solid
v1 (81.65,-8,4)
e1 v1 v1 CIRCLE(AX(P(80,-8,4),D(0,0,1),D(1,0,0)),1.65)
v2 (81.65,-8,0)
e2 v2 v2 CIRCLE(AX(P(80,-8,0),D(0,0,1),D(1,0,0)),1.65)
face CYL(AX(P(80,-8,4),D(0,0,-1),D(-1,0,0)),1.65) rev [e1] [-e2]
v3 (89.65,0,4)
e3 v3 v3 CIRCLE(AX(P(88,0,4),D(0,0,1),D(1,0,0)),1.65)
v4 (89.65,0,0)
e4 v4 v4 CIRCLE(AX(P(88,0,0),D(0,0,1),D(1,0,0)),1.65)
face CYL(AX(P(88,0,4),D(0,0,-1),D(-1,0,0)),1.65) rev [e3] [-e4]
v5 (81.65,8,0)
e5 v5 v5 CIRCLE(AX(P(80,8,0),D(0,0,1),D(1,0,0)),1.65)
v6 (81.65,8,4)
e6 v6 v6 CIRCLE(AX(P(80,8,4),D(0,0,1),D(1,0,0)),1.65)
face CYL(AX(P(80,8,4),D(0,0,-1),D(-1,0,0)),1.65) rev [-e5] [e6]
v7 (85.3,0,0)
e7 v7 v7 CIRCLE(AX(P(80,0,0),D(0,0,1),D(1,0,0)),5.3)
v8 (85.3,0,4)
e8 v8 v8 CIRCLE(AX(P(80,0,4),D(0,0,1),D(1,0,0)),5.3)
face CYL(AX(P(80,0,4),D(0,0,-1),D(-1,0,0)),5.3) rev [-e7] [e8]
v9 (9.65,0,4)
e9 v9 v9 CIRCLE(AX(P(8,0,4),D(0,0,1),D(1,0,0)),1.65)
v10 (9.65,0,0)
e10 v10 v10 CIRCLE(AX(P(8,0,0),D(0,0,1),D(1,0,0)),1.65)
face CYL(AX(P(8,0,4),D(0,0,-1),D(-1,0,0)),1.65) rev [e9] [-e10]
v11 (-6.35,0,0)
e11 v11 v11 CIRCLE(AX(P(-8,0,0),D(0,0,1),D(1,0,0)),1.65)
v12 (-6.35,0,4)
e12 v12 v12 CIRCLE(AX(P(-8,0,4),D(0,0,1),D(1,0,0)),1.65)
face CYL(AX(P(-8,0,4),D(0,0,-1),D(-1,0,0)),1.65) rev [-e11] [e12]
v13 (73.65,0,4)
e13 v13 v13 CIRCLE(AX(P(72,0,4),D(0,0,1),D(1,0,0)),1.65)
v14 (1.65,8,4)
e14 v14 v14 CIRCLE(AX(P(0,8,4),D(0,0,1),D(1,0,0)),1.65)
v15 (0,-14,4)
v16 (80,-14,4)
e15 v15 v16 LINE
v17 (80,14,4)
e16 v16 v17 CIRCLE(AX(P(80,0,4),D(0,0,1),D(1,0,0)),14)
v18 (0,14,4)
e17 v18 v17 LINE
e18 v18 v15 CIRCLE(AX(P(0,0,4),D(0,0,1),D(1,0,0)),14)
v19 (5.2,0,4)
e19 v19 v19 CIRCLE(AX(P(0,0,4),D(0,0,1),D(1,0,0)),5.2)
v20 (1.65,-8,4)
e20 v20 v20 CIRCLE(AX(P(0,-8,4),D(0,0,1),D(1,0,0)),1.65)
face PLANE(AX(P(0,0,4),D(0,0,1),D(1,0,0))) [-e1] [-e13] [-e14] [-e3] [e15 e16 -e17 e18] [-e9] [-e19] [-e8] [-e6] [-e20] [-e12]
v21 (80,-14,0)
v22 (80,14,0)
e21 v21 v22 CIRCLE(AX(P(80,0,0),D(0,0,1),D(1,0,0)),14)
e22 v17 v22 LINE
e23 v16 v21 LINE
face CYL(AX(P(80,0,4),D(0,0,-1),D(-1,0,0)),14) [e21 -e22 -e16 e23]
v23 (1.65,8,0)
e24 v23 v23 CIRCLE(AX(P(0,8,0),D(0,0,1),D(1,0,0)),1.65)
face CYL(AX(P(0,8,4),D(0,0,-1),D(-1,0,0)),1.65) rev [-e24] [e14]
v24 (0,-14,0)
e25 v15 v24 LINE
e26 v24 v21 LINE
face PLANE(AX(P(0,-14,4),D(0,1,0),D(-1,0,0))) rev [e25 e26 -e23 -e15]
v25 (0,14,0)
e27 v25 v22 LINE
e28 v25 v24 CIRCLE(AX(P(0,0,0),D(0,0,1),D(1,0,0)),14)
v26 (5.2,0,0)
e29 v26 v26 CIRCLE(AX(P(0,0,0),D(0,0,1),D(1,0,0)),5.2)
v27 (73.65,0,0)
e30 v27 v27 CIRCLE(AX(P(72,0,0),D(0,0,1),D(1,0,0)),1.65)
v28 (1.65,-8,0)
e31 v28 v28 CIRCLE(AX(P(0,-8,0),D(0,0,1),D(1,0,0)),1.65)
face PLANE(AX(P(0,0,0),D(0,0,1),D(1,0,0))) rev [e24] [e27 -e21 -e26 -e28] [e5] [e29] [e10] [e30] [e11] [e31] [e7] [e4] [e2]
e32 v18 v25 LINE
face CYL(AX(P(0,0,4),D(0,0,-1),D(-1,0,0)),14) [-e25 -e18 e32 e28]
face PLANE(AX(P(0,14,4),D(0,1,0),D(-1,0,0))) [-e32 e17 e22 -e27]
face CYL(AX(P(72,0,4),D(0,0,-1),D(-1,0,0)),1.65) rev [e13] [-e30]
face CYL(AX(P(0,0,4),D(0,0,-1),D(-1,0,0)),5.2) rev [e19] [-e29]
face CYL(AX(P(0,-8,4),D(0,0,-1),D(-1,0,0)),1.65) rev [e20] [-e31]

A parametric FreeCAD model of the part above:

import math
import FreeCAD as App
import Part
import Sketcher
from FreeCAD import Vector

doc = App.newDocument("Part")
params = doc.addObject("Spreadsheet::Sheet", "Params")
for row, (alias, value) in enumerate([
    ("sketch1_radius", "14 mm"),
    ("sketch1_radius2", "5.2 mm"),
    ("sketch1_radius3", "5.3 mm"),
    ("sketch1_width", "80 mm"),
    ("sketch1_radius4", "1.65 mm"),
    ("pad1_length", "4 mm"),
], start=1):
    params.set(f"A{row}", alias)
    params.set(f"B{row}", "=" + value)
    params.setAlias(f"B{row}", alias)

body = doc.addObject("PartDesign::Body", "Body")

# Sketch on XY plane
sketch1 = doc.addObject("Sketcher::SketchObject", "Sketch")
body.addObject(sketch1)
sketch1.AttachmentSupport = (doc.XY_Plane, [""])
sketch1.MapMode = "FlatFace"
sketch1.addGeometry([
    Part.ArcOfCircle(Part.Circle(Vector(0, 0, 0), Vector(0, 0, 1), 14), math.radians(90), math.radians(270)),  # 0
    Part.LineSegment(Vector(0, -14, 0), Vector(80, -14, 0)),  # 1
    Part.ArcOfCircle(Part.Circle(Vector(80, 0, 0), Vector(0, 0, 1), 14), math.radians(-90), math.radians(0)),  # 2
    Part.ArcOfCircle(Part.Circle(Vector(80, 0, 0), Vector(0, 0, 1), 14), math.radians(0), math.radians(90)),  # 3
    Part.LineSegment(Vector(80, 14, 0), Vector(0, 14, 0)),  # 4
    Part.ArcOfCircle(Part.Circle(Vector(0, -8, 0), Vector(0, 0, 1), 1.65), math.radians(174.080849), math.radians(270)),  # 5
    Part.ArcOfCircle(Part.Circle(Vector(0, -8, 0), Vector(0, 0, 1), 1.65), math.radians(90), math.radians(174.080849)),  # 6
    Part.ArcOfCircle(Part.Circle(Vector(0, -8, 0), Vector(0, 0, 1), 1.65), math.radians(5.919151), math.radians(90)),  # 7
    Part.ArcOfCircle(Part.Circle(Vector(0, -8, 0), Vector(0, 0, 1), 1.65), math.radians(0), math.radians(5.91915)),  # 8
    Part.ArcOfCircle(Part.Circle(Vector(0, -8, 0), Vector(0, 0, 1), 1.65), math.radians(-90), math.radians(0)),  # 9
    Part.ArcOfCircle(Part.Circle(Vector(8, 0, 0), Vector(0, 0, 1), 1.65), math.radians(95.919151), math.radians(264.080849)),  # 10
    Part.ArcOfCircle(Part.Circle(Vector(8, 0, 0), Vector(0, 0, 1), 1.65), math.radians(0), math.radians(95.919151)),  # 11
    Part.ArcOfCircle(Part.Circle(Vector(8, 0, 0), Vector(0, 0, 1), 1.65), math.radians(-95.919151), math.radians(0)),  # 12
    Part.ArcOfCircle(Part.Circle(Vector(0, 8, 0), Vector(0, 0, 1), 1.65), math.radians(-90), math.radians(-5.919151)),  # 13
    Part.ArcOfCircle(Part.Circle(Vector(0, 8, 0), Vector(0, 0, 1), 1.65), math.radians(-174.080849), math.radians(-90)),  # 14
    Part.ArcOfCircle(Part.Circle(Vector(0, 8, 0), Vector(0, 0, 1), 1.65), math.radians(90), math.radians(185.919151)),  # 15
    Part.ArcOfCircle(Part.Circle(Vector(0, 8, 0), Vector(0, 0, 1), 1.65), math.radians(0), math.radians(90)),  # 16
    Part.ArcOfCircle(Part.Circle(Vector(0, 8, 0), Vector(0, 0, 1), 1.65), math.radians(-5.91915), math.radians(0)),  # 17
    Part.ArcOfCircle(Part.Circle(Vector(0, 0, 0), Vector(0, 0, 1), 5.2), math.radians(90), math.radians(270)),  # 18
    Part.ArcOfCircle(Part.Circle(Vector(0, 0, 0), Vector(0, 0, 1), 5.2), math.radians(0), math.radians(90)),  # 19
    Part.ArcOfCircle(Part.Circle(Vector(0, 0, 0), Vector(0, 0, 1), 5.2), math.radians(-90), math.radians(0)),  # 20
    Part.ArcOfCircle(Part.Circle(Vector(-8, 0, 0), Vector(0, 0, 1), 1.65), math.radians(84.080849), math.radians(275.919151)),  # 21
    Part.ArcOfCircle(Part.Circle(Vector(-8, 0, 0), Vector(0, 0, 1), 1.65), math.radians(0), math.radians(84.080849)),  # 22
    Part.ArcOfCircle(Part.Circle(Vector(-8, 0, 0), Vector(0, 0, 1), 1.65), math.radians(-84.080849), math.radians(0)),  # 23
    Part.ArcOfCircle(Part.Circle(Vector(72, 0, 0), Vector(0, 0, 1), 1.65), math.radians(-84.080849), math.radians(0)),  # 24
    Part.ArcOfCircle(Part.Circle(Vector(72, 0, 0), Vector(0, 0, 1), 1.65), math.radians(84.080849), math.radians(275.919151)),  # 25
    Part.ArcOfCircle(Part.Circle(Vector(72, 0, 0), Vector(0, 0, 1), 1.65), math.radians(0), math.radians(84.080849)),  # 26
    Part.ArcOfCircle(Part.Circle(Vector(80, 8, 0), Vector(0, 0, 1), 1.65), math.radians(0), math.radians(90)),  # 27
    Part.ArcOfCircle(Part.Circle(Vector(80, 8, 0), Vector(0, 0, 1), 1.65), math.radians(-5.91915), math.radians(0)),  # 28
    Part.ArcOfCircle(Part.Circle(Vector(80, 8, 0), Vector(0, 0, 1), 1.65), math.radians(-90), math.radians(-5.919151)),  # 29
    Part.ArcOfCircle(Part.Circle(Vector(80, 8, 0), Vector(0, 0, 1), 1.65), math.radians(-174.080849), math.radians(-90)),  # 30
    Part.ArcOfCircle(Part.Circle(Vector(80, 8, 0), Vector(0, 0, 1), 1.65), math.radians(90), math.radians(185.919151)),  # 31
    Part.ArcOfCircle(Part.Circle(Vector(88, 0, 0), Vector(0, 0, 1), 1.65), math.radians(0), math.radians(95.919151)),  # 32
    Part.ArcOfCircle(Part.Circle(Vector(88, 0, 0), Vector(0, 0, 1), 1.65), math.radians(-95.919151), math.radians(0)),  # 33
    Part.ArcOfCircle(Part.Circle(Vector(88, 0, 0), Vector(0, 0, 1), 1.65), math.radians(95.919151), math.radians(264.080849)),  # 34
    Part.ArcOfCircle(Part.Circle(Vector(80, -8, 0), Vector(0, 0, 1), 1.65), math.radians(0), math.radians(5.91915)),  # 35
    Part.ArcOfCircle(Part.Circle(Vector(80, -8, 0), Vector(0, 0, 1), 1.65), math.radians(-90), math.radians(0)),  # 36
    Part.ArcOfCircle(Part.Circle(Vector(80, -8, 0), Vector(0, 0, 1), 1.65), math.radians(174.080849), math.radians(270)),  # 37
    Part.ArcOfCircle(Part.Circle(Vector(80, -8, 0), Vector(0, 0, 1), 1.65), math.radians(90), math.radians(174.080849)),  # 38
    Part.ArcOfCircle(Part.Circle(Vector(80, -8, 0), Vector(0, 0, 1), 1.65), math.radians(5.919151), math.radians(90)),  # 39
    Part.ArcOfCircle(Part.Circle(Vector(80, 0, 0), Vector(0, 0, 1), 5.3), math.radians(90), math.radians(270)),  # 40
    Part.ArcOfCircle(Part.Circle(Vector(80, 0, 0), Vector(0, 0, 1), 5.3), math.radians(0), math.radians(90)),  # 41
    Part.ArcOfCircle(Part.Circle(Vector(80, 0, 0), Vector(0, 0, 1), 5.3), math.radians(-90), math.radians(0)),  # 42
], False)
sketch1.addConstraint([
    Sketcher.Constraint("Tangent", 0, 2, 1, 1),
    Sketcher.Constraint("Tangent", 1, 2, 2, 1),
    Sketcher.Constraint("Tangent", 2, 2, 3, 1),
    Sketcher.Constraint("Tangent", 3, 2, 4, 1),
    Sketcher.Constraint("Tangent", 4, 2, 0, 1),
    Sketcher.Constraint("Tangent", 5, 1, 6, 2),
    Sketcher.Constraint("Tangent", 6, 1, 7, 2),
    Sketcher.Constraint("Tangent", 7, 1, 8, 2),
    Sketcher.Constraint("Tangent", 8, 1, 9, 2),
    Sketcher.Constraint("Tangent", 9, 1, 5, 2),
    Sketcher.Constraint("Tangent", 10, 1, 11, 2),
    Sketcher.Constraint("Tangent", 11, 1, 12, 2),
    Sketcher.Constraint("Tangent", 12, 1, 10, 2),
    Sketcher.Constraint("Tangent", 13, 1, 14, 2),
    Sketcher.Constraint("Tangent", 14, 1, 15, 2),
    Sketcher.Constraint("Tangent", 15, 1, 16, 2),
    Sketcher.Constraint("Tangent", 16, 1, 17, 2),
    Sketcher.Constraint("Tangent", 17, 1, 13, 2),
    Sketcher.Constraint("Tangent", 18, 1, 19, 2),
    Sketcher.Constraint("Tangent", 19, 1, 20, 2),
    Sketcher.Constraint("Tangent", 20, 1, 18, 2),
    Sketcher.Constraint("Tangent", 21, 1, 22, 2),
    Sketcher.Constraint("Tangent", 22, 1, 23, 2),
    Sketcher.Constraint("Tangent", 23, 1, 21, 2),
    Sketcher.Constraint("Tangent", 24, 1, 25, 2),
    Sketcher.Constraint("Tangent", 25, 1, 26, 2),
    Sketcher.Constraint("Tangent", 26, 1, 24, 2),
    Sketcher.Constraint("Tangent", 27, 1, 28, 2),
    Sketcher.Constraint("Tangent", 28, 1, 29, 2),
    Sketcher.Constraint("Tangent", 29, 1, 30, 2),
    Sketcher.Constraint("Tangent", 30, 1, 31, 2),
    Sketcher.Constraint("Tangent", 31, 1, 27, 2),
    Sketcher.Constraint("Tangent", 32, 1, 33, 2),
    Sketcher.Constraint("Tangent", 33, 1, 34, 2),
    Sketcher.Constraint("Tangent", 34, 1, 32, 2),
    Sketcher.Constraint("Tangent", 35, 1, 36, 2),
    Sketcher.Constraint("Tangent", 36, 1, 37, 2),
    Sketcher.Constraint("Tangent", 37, 1, 38, 2),
    Sketcher.Constraint("Tangent", 38, 1, 39, 2),
    Sketcher.Constraint("Tangent", 39, 1, 35, 2),
    Sketcher.Constraint("Tangent", 40, 1, 41, 2),
    Sketcher.Constraint("Tangent", 41, 1, 42, 2),
    Sketcher.Constraint("Tangent", 42, 1, 40, 2),
    Sketcher.Constraint("Horizontal", 1),
    Sketcher.Constraint("Horizontal", 4),
    Sketcher.Constraint("Coincident", 0, 3, -1, 1),
    Sketcher.Constraint("Coincident", 18, 3, -1, 1),
    Sketcher.Constraint("Coincident", 7, 3, 5, 3),
    Sketcher.Constraint("Coincident", 15, 3, 13, 3),
    Sketcher.Constraint("Coincident", 29, 3, 27, 3),
    Sketcher.Constraint("Coincident", 37, 3, 35, 3),
    Sketcher.Constraint("Coincident", 40, 3, 2, 3),
    Sketcher.Constraint("Equal", 0, 2),
    Sketcher.Constraint("Equal", 9, 10),
    Sketcher.Constraint("Equal", 12, 13),
    Sketcher.Constraint("Equal", 17, 21),
    Sketcher.Constraint("Equal", 23, 24),
    Sketcher.Constraint("Equal", 26, 27),
    Sketcher.Constraint("Equal", 31, 32),
    Sketcher.Constraint("Equal", 34, 35),
    Sketcher.Constraint("Symmetric", 5, 3, 13, 3, -1, 1),
    Sketcher.Constraint("Symmetric", 10, 3, 21, 3, -1, 1),
    Sketcher.Constraint("Symmetric", 5, 1, 7, 1, -2),
    Sketcher.Constraint("Symmetric", 10, 1, 21, 1, -2),
    Sketcher.Constraint("Symmetric", 27, 3, 35, 3, -1),
    Sketcher.Constraint("Symmetric", 24, 1, 25, 1, -1),
    Sketcher.Constraint("Symmetric", 33, 1, 34, 1, -1),
    Sketcher.Constraint("PointOnObject", 2, 2, -1),
    Sketcher.Constraint("PointOnObject", 6, 1, -2),
    Sketcher.Constraint("PointOnObject", 9, 1, -2),
    Sketcher.Constraint("PointOnObject", 11, 1, -1),
    Sketcher.Constraint("PointOnObject", 13, 1, -2),
    Sketcher.Constraint("PointOnObject", 15, 1, -2),
    Sketcher.Constraint("PointOnObject", 18, 1, -2),
    Sketcher.Constraint("PointOnObject", 19, 1, -1),
    Sketcher.Constraint("PointOnObject", 20, 1, -2),
    Sketcher.Constraint("PointOnObject", 22, 1, -1),
    Sketcher.Constraint("PointOnObject", 26, 1, -1),
    Sketcher.Constraint("PointOnObject", 32, 1, -1),
    Sketcher.Constraint("PointOnObject", 41, 1, -1),
    Sketcher.Constraint("Horizontal", 17, 3, 27, 3),
    Sketcher.Constraint("Horizontal", 39, 3, 8, 1),
    Sketcher.Constraint("Horizontal", 31, 3, 16, 1),
    Sketcher.Constraint("Horizontal", 14, 1, 17, 1),
    Sketcher.Constraint("Horizontal", 12, 1, 23, 1),
    Sketcher.Constraint("Horizontal", 23, 1, 24, 1),
    Sketcher.Constraint("Horizontal", 21, 1, 25, 1),
    Sketcher.Constraint("Horizontal", 16, 1, 27, 1),
    Sketcher.Constraint("Horizontal", 17, 1, 28, 1),
    Sketcher.Constraint("Horizontal", 28, 1, 30, 1),
    Sketcher.Constraint("Horizontal", 24, 1, 33, 1),
    Sketcher.Constraint("Horizontal", 8, 1, 35, 1),
    Sketcher.Constraint("Horizontal", 7, 1, 37, 1),
    Sketcher.Constraint("Horizontal", 37, 1, 39, 1),
    Sketcher.Constraint("Vertical", 3, 3, 27, 3),
    Sketcher.Constraint("Vertical", 5, 1, 14, 1),
    Sketcher.Constraint("Vertical", 3, 2, 29, 1),
    Sketcher.Constraint("Vertical", 29, 1, 31, 1),
    Sketcher.Constraint("Vertical", 31, 1, 36, 1),
    Sketcher.Constraint("Vertical", 36, 1, 38, 1),
    Sketcher.Constraint("Vertical", 38, 1, 40, 1),
    Sketcher.Constraint("Vertical", 40, 1, 42, 1),
    Sketcher.Constraint("Radius", 0, 14.0),
    Sketcher.Constraint("Radius", 18, 5.2),
    Sketcher.Constraint("Radius", 40, 5.3),
    Sketcher.Constraint("DistanceX", 1, 1, 1, 2, 80.0),
    Sketcher.Constraint("Radius", 5, 1.65),
    Sketcher.Constraint("DistanceY", 5, 3, -1, 1, 8.0),
    Sketcher.Constraint("DistanceX", -1, 1, 10, 3, 8.0),
    Sketcher.Constraint("DistanceX", -1, 1, 24, 3, 72.0),
    Sketcher.Constraint("DistanceX", -1, 1, 32, 3, 88.0),
    Sketcher.Constraint("DistanceX", 5, 1, -1, 1, 1.641203),
    Sketcher.Constraint("DistanceX", -1, 1, 10, 1, 7.829844),
])
sketch1.setExpression("Constraints[102]", "Params.sketch1_radius")
sketch1.setExpression("Constraints[103]", "Params.sketch1_radius2")
sketch1.setExpression("Constraints[104]", "Params.sketch1_radius3")
sketch1.setExpression("Constraints[105]", "Params.sketch1_width")
sketch1.setExpression("Constraints[106]", "Params.sketch1_radius4")
pad1 = doc.addObject("PartDesign::Pad", "Pad")
body.addObject(pad1)
pad1.Profile = sketch1
pad1.setExpression("Length", "Params.pad1_length")

doc.recompute()
